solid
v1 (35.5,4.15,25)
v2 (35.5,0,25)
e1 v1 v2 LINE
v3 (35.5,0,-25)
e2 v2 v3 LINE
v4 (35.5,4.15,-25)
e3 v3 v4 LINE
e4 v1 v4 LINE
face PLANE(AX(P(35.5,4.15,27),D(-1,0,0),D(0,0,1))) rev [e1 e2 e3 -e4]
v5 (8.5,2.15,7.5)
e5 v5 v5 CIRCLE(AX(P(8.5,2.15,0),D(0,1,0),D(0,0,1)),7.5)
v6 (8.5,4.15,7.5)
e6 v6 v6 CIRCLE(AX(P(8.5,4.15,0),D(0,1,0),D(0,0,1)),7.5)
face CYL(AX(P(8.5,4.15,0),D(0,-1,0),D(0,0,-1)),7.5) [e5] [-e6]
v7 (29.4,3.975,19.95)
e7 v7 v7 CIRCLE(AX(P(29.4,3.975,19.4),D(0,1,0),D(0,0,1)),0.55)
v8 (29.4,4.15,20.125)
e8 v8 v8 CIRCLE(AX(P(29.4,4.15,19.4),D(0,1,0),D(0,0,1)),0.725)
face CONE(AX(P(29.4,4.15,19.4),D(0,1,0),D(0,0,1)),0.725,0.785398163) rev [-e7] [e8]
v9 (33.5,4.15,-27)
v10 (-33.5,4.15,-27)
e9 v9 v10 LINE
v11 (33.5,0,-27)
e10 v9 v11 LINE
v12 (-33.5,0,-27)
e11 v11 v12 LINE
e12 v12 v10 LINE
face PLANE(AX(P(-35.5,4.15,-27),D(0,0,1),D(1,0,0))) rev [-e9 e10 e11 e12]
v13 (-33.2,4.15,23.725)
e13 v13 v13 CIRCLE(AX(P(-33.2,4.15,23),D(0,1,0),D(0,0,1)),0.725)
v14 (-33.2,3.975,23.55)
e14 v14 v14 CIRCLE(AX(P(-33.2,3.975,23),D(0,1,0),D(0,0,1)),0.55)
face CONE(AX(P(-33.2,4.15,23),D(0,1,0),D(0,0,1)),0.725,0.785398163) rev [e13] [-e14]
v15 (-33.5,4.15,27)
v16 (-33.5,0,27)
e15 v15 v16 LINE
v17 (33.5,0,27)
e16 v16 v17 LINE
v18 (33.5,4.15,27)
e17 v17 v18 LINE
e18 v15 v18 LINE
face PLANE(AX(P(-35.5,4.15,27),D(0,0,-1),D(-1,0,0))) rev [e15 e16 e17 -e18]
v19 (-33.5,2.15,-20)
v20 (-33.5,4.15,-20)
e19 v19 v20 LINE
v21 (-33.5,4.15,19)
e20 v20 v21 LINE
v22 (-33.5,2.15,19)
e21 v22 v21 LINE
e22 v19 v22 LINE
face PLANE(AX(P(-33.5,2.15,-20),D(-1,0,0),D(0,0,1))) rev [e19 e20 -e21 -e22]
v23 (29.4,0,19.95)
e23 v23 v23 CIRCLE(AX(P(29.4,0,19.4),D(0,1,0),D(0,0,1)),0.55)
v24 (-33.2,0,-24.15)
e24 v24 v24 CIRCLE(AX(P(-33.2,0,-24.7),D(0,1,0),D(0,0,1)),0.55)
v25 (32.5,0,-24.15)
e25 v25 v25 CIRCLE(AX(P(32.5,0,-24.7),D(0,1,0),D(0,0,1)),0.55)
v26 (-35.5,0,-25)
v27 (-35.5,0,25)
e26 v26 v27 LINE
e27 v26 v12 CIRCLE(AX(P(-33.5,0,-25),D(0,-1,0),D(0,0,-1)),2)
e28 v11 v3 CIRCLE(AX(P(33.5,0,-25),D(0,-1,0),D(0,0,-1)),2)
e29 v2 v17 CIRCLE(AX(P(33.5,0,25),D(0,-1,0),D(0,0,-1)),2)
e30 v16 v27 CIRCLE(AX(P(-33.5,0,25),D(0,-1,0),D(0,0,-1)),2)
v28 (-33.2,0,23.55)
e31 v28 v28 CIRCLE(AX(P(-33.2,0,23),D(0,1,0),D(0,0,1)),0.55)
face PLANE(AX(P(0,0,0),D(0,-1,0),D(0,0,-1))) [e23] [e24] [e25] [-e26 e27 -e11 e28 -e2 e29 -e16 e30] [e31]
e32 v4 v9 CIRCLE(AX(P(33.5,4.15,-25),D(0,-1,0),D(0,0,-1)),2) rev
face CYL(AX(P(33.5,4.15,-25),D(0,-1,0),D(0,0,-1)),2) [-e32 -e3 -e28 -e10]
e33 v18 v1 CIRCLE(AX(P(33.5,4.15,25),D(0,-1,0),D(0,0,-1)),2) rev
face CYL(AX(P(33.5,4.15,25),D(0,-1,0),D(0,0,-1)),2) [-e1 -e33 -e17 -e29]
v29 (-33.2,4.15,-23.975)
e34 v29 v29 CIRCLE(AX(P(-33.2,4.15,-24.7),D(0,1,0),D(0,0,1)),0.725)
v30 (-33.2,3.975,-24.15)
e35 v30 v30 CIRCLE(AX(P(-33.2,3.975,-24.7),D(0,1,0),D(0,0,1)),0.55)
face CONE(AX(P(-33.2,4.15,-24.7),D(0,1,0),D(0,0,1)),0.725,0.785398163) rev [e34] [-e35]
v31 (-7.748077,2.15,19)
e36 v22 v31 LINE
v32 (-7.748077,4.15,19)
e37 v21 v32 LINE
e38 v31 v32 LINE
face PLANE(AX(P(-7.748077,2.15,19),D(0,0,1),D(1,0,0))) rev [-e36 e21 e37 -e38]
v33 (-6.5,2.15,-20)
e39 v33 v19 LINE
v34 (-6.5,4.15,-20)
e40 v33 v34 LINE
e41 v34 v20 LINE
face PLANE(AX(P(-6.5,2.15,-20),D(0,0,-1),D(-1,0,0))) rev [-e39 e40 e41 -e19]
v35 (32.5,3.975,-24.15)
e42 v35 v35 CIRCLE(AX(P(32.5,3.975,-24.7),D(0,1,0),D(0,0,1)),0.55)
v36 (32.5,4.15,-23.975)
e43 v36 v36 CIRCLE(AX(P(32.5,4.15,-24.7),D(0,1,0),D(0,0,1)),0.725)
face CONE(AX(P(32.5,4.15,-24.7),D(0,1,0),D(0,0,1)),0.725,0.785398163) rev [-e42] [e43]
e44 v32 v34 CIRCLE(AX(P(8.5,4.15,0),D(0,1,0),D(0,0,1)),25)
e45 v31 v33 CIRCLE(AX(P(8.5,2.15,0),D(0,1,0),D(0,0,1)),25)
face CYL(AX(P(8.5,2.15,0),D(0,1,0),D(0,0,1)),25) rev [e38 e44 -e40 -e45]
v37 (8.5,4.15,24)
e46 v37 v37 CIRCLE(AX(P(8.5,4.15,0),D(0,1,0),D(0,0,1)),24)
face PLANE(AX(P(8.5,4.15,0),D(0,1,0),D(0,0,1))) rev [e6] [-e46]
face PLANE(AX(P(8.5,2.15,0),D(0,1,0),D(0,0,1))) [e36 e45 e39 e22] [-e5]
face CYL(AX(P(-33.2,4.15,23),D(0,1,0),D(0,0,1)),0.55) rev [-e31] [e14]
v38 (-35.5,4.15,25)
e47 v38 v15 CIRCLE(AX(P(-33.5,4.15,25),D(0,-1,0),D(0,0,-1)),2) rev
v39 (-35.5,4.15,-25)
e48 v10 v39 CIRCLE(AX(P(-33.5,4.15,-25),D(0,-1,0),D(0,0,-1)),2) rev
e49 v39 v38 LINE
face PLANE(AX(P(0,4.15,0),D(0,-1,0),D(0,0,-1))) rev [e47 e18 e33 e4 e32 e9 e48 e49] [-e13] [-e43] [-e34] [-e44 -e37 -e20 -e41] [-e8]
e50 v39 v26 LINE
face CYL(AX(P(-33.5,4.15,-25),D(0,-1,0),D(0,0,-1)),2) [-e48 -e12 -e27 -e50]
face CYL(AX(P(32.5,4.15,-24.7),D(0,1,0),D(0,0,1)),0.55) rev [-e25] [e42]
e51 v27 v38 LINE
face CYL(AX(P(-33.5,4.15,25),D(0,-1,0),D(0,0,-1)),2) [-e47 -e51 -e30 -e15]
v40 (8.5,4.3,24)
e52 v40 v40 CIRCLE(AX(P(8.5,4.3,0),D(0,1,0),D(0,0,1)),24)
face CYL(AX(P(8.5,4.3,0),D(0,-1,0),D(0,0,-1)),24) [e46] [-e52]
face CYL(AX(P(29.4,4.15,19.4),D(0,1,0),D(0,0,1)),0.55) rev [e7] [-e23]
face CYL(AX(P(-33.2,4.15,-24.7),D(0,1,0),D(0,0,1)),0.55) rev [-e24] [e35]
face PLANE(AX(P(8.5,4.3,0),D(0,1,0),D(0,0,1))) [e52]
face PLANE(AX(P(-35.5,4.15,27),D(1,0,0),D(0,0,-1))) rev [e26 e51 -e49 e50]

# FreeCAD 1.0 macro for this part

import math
import FreeCAD as App
import Part
import Sketcher
from FreeCAD import Vector
Q = App.Units.Quantity


def edges_at(feature, points):
    """Names of the edges that pass closest to the given points."""
    edges = feature.Shape.Edges
    near = lambda p: min(range(len(edges)), key=lambda i: edges[i].distToShape(Part.Vertex(*p))[0])
    return sorted({f"Edge{near(p) + 1}" for p in points})


def add_polygon(sketch, points):
    """Adds a closed chain of lines whose ends are joined by coincident constraints."""
    first, n = sketch.GeometryCount, len(points)
    for a, b in zip(points, points[1:] + points[:1]):
        sketch.addGeometry(Part.LineSegment(App.Vector(*a, 0), App.Vector(*b, 0)), False)
    for i in range(n):
        sketch.addConstraint(Sketcher.Constraint("Coincident", first + i, 2, first + (i + 1) % n, 1))

doc = App.newDocument("Part")
body = doc.addObject("PartDesign::Body", "Body")

# Sketch on XZ plane
sketch1 = body.newObject("Sketcher::SketchObject", "Sketch")
sketch1.AttachmentSupport = (doc.getObject("XZ_Plane"), [""])
sketch1.MapMode = "FlatFace"
add_polygon(sketch1, [(-36, -27), (-36, 27), (36, 27), (36, -27)])  # lines 0-3
sketch1.addConstraint(Sketcher.Constraint("Vertical", 0))
sketch1.addConstraint(Sketcher.Constraint("Horizontal", 1))
sketch1.addConstraint(Sketcher.Constraint("Vertical", 2))
sketch1.addConstraint(Sketcher.Constraint("Horizontal", 3))
sketch1.addConstraint(Sketcher.Constraint("Symmetric", 0, 2, 2, 2, -1, 1))
sketch1.addConstraint(Sketcher.Constraint("DistanceX", 1, 1, 1, 2, Q("71 mm")))
sketch1.addConstraint(Sketcher.Constraint("DistanceY", 0, 1, 0, 2, Q("54 mm")))
pad1 = body.newObject("PartDesign::Pad", "Pad")
pad1.Profile = sketch1
pad1.Length = 4.15
pad1.Reversed = True

# Sketch on XZ plane
sketch2 = body.newObject("Sketcher::SketchObject", "Sketch001")
sketch2.AttachmentSupport = (doc.getObject("XZ_Plane"), [""])
sketch2.MapMode = "FlatFace"
sketch2.AttachmentOffset = App.Placement(Vector(0, 0, -4.15), App.Rotation())
sketch2.addGeometry(Part.LineSegment(Vector(-6, -20, 0), Vector(-34, -20, 0)), False)
sketch2.addGeometry(Part.LineSegment(Vector(-34, -20, 0), Vector(-34, 19, 0)), False)
sketch2.addGeometry(Part.LineSegment(Vector(-34, 19, 0), Vector(-8, 19, 0)), False)
sketch2.addGeometry(Part.ArcOfCircle(Part.Circle(Vector(8, 0, 0), Vector(0, 0, 1), 25), math.radians(-127), math.radians(131)), False)
sketch2.addConstraint(Sketcher.Constraint("Coincident", 0, 2, 1, 1))
sketch2.addConstraint(Sketcher.Constraint("Coincident", 1, 2, 2, 1))
sketch2.addConstraint(Sketcher.Constraint("Coincident", 2, 2, 3, 2))
sketch2.addConstraint(Sketcher.Constraint("Coincident", 3, 1, 0, 1))
sketch2.addConstraint(Sketcher.Constraint("Horizontal", 0))
sketch2.addConstraint(Sketcher.Constraint("Vertical", 1))
sketch2.addConstraint(Sketcher.Constraint("Horizontal", 2))
sketch2.addConstraint(Sketcher.Constraint("PointOnObject", 3, 3, -1))
sketch2.addConstraint(Sketcher.Constraint("Radius", 3, Q("25 mm")))
sketch2.addConstraint(Sketcher.Constraint("DistanceX", 0, 2, 0, 1, Q("27 mm")))
sketch2.addConstraint(Sketcher.Constraint("DistanceY", 1, 1, 1, 2, Q("39 mm")))
sketch2.addConstraint(Sketcher.Constraint("DistanceY", 0, 2, -1, 1, Q("20 mm")))
sketch2.addConstraint(Sketcher.Constraint("DistanceX", -1, 1, 3, 3, Q("8.5 mm")))
pocket1 = body.newObject("PartDesign::Pocket", "Pocket")
pocket1.Profile = sketch2
pocket1.Length = 2
pocket1.Reversed = True

# Sketch on XZ plane
sketch3 = body.newObject("Sketcher::SketchObject", "Sketch002")
sketch3.AttachmentSupport = (doc.getObject("XZ_Plane"), [""])
sketch3.MapMode = "FlatFace"
sketch3.AttachmentOffset = App.Placement(Vector(0, 0, -2.15), App.Rotation())
sketch3.addGeometry(Part.Circle(Vector(8, 0, 0), Vector(0, 0, 1), 8), False)
sketch3.addConstraint(Sketcher.Constraint("PointOnObject", 0, 3, -1))
sketch3.addConstraint(Sketcher.Constraint("Diameter", 0, Q("15 mm")))
sketch3.addConstraint(Sketcher.Constraint("DistanceX", -1, 1, 0, 3, Q("8.5 mm")))
pad2 = body.newObject("PartDesign::Pad", "Pad001")
pad2.Profile = sketch3
pad2.Length = 2
pad2.Reversed = True

# Sketch on XZ plane
sketch4 = body.newObject("Sketcher::SketchObject", "Sketch003")
sketch4.AttachmentSupport = (doc.getObject("XZ_Plane"), [""])
sketch4.MapMode = "FlatFace"
sketch4.AttachmentOffset = App.Placement(Vector(0, 0, -4.15), App.Rotation())
sketch4.addGeometry(Part.Circle(Vector(8, 0, 0), Vector(0, 0, 1), 24), False)
sketch4.addConstraint(Sketcher.Constraint("PointOnObject", 0, 3, -1))
sketch4.addConstraint(Sketcher.Constraint("Diameter", 0, Q("48 mm")))
sketch4.addConstraint(Sketcher.Constraint("DistanceX", -1, 1, 0, 3, Q("8.5 mm")))
pad3 = body.newObject("PartDesign::Pad", "Pad002")
pad3.Profile = sketch4
pad3.Length = 0.15
pad3.Reversed = True

# Sketch on XZ plane
sketch5 = body.newObject("Sketcher::SketchObject", "Sketch004")
sketch5.AttachmentSupport = (doc.getObject("XZ_Plane"), [""])
sketch5.MapMode = "FlatFace"
sketch5.AttachmentOffset = App.Placement(Vector(0, 0, -4.15), App.Rotation())
sketch5.addGeometry(Part.Circle(Vector(-33.2, -24.7, 0), Vector(0, 0, 1), 0.6), False)
sketch5.addGeometry(Part.Circle(Vector(-33.2, 23, 0), Vector(0, 0, 1), 0.6), False)
sketch5.addGeometry(Part.Circle(Vector(29.4, 19.4, 0), Vector(0, 0, 1), 0.6), False)
sketch5.addGeometry(Part.Circle(Vector(32.5, -24.7, 0), Vector(0, 0, 1), 0.6), False)
sketch5.addConstraint(Sketcher.Constraint("Equal", 0, 1))
sketch5.addConstraint(Sketcher.Constraint("Equal", 1, 2))
sketch5.addConstraint(Sketcher.Constraint("Equal", 2, 3))
sketch5.addConstraint(Sketcher.Constraint("Horizontal", 0, 3, 3, 3))
sketch5.addConstraint(Sketcher.Constraint("Vertical", 0, 3, 1, 3))
sketch5.addConstraint(Sketcher.Constraint("Diameter", 0, Q("1.1 mm")))
sketch5.addConstraint(Sketcher.Constraint("DistanceY", -1, 1, 1, 3, Q("23 mm")))
sketch5.addConstraint(Sketcher.Constraint("DistanceX", 0, 3, -1, 1, Q("33.2 mm")))
sketch5.addConstraint(Sketcher.Constraint("DistanceY", 0, 3, -1, 1, Q("24.7 mm")))
sketch5.addConstraint(Sketcher.Constraint("DistanceX", -1, 1, 2, 3, Q("29.4 mm")))
sketch5.addConstraint(Sketcher.Constraint("DistanceY", -1, 1, 2, 3, Q("19.4 mm")))
sketch5.addConstraint(Sketcher.Constraint("DistanceX", -1, 1, 3, 3, Q("32.5 mm")))
doc.recompute()
hole = body.newObject("PartDesign::Hole", "Hole")
hole.Profile = sketch5
hole.ThreadType = "None"
hole.Diameter = 1.1
hole.DepthType = "ThroughAll"
hole.HoleCutType = "Countersink"
hole.HoleCutDiameter = 1.45
hole.HoleCutCountersinkAngle = 90
hole.Reversed = True
doc.recompute()

fillet = body.newObject("PartDesign::Fillet", "Fillet")
fillet.Base = (hole, edges_at(hole, [
    (35.5, 2.075, 27),
    (-35.5, 2.075, 27),
    (-35.5, 2.075, -27),
    (35.5, 2.075, -27),
]))
fillet.Radius = 2

doc.recompute()
